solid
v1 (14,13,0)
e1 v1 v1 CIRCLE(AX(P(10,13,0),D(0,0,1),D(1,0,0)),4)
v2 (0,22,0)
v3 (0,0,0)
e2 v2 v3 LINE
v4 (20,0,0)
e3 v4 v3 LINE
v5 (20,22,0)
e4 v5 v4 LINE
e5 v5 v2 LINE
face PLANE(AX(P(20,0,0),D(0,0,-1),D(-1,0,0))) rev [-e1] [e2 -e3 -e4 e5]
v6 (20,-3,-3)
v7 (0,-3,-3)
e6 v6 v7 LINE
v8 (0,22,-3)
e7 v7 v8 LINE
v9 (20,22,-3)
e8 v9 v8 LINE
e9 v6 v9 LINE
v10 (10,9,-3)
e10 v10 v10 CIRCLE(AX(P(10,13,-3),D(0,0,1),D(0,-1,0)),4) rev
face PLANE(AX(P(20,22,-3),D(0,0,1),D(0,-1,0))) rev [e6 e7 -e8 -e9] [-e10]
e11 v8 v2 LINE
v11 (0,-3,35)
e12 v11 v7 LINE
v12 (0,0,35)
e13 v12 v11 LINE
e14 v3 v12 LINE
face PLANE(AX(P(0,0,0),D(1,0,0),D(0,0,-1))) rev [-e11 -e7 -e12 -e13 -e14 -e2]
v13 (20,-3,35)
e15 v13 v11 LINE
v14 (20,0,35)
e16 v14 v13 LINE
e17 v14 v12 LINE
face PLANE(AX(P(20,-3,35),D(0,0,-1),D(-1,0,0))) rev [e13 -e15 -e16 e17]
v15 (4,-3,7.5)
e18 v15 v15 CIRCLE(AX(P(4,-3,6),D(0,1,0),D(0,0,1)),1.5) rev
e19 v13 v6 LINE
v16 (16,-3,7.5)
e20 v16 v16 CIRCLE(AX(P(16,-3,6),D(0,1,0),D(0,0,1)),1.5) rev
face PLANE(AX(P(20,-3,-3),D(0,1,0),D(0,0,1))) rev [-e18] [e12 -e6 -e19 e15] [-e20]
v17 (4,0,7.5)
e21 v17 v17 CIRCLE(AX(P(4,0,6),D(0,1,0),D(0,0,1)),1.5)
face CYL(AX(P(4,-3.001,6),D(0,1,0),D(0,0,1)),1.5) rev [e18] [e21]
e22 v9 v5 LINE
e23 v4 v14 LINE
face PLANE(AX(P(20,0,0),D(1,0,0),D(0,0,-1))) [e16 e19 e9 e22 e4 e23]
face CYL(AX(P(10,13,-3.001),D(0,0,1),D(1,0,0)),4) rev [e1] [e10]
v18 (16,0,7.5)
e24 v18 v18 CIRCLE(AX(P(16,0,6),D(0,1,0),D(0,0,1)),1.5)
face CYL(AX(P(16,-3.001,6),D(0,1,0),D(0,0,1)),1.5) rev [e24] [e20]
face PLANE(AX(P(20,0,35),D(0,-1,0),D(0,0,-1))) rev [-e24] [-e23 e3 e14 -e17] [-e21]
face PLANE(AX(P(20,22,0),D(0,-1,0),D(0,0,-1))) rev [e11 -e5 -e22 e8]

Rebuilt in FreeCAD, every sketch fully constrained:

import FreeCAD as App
import Part
import Sketcher
from FreeCAD import Vector
Q = App.Units.Quantity

doc = App.newDocument("Part")
body = doc.addObject("PartDesign::Body", "Body")

# Sketch on YZ plane
sketch1 = doc.addObject("Sketcher::SketchObject", "Sketch")
body.addObject(sketch1)
sketch1.AttachmentSupport = (doc.YZ_Plane, [""])
sketch1.MapMode = "FlatFace"
sketch1.addGeometry(Part.LineSegment(Vector(22, 0, 0), Vector(0, 0, 0)), False)
sketch1.addGeometry(Part.LineSegment(Vector(0, 0, 0), Vector(0, 35, 0)), False)
sketch1.addGeometry(Part.LineSegment(Vector(0, 35, 0), Vector(-3, 35, 0)), False)
sketch1.addGeometry(Part.LineSegment(Vector(-3, 35, 0), Vector(-3, -3, 0)), False)
sketch1.addGeometry(Part.LineSegment(Vector(-3, -3, 0), Vector(22, -3, 0)), False)
sketch1.addGeometry(Part.LineSegment(Vector(22, -3, 0), Vector(22, 0, 0)), False)
sketch1.addConstraint(Sketcher.Constraint("Coincident", 0, 2, 1, 1))
sketch1.addConstraint(Sketcher.Constraint("Coincident", 1, 2, 2, 1))
sketch1.addConstraint(Sketcher.Constraint("Coincident", 2, 2, 3, 1))
sketch1.addConstraint(Sketcher.Constraint("Coincident", 3, 2, 4, 1))
sketch1.addConstraint(Sketcher.Constraint("Coincident", 4, 2, 5, 1))
sketch1.addConstraint(Sketcher.Constraint("Coincident", 5, 2, 0, 1))
sketch1.addConstraint(Sketcher.Constraint("Horizontal", 0))
sketch1.addConstraint(Sketcher.Constraint("Vertical", 1))
sketch1.addConstraint(Sketcher.Constraint("Horizontal", 2))
sketch1.addConstraint(Sketcher.Constraint("Vertical", 3))
sketch1.addConstraint(Sketcher.Constraint("Horizontal", 4))
sketch1.addConstraint(Sketcher.Constraint("Vertical", 5))
sketch1.addConstraint(Sketcher.Constraint("Coincident", 0, 2, -1, 1))
sketch1.addConstraint(Sketcher.Constraint("Equal", 2, 5))
sketch1.addConstraint(Sketcher.Constraint("DistanceX", 0, 2, 0, 1, Q("22 mm")))
sketch1.addConstraint(Sketcher.Constraint("DistanceX", 2, 2, 2, 1, Q("3 mm")))
sketch1.addConstraint(Sketcher.Constraint("DistanceY", 1, 1, 1, 2, Q("35 mm")))
pad1 = doc.addObject("PartDesign::Pad", "Pad")
body.addObject(pad1)
pad1.Profile = sketch1
pad1.Length = 20

# Sketch on XY plane
sketch2 = doc.addObject("Sketcher::SketchObject", "Sketch001")
body.addObject(sketch2)
sketch2.AttachmentSupport = (doc.XY_Plane, [""])
sketch2.MapMode = "FlatFace"
sketch2.addGeometry(Part.Circle(Vector(10, 13, 0), Vector(0, 0, 1), 4), False)
sketch2.addConstraint(Sketcher.Constraint("Diameter", 0, Q("8 mm")))
sketch2.addConstraint(Sketcher.Constraint("DistanceX", -1, 1, 0, 3, Q("10 mm")))
sketch2.addConstraint(Sketcher.Constraint("DistanceY", -1, 1, 0, 3, Q("13 mm")))
pocket1 = doc.addObject("PartDesign::Pocket", "Pocket")
body.addObject(pocket1)
pocket1.Profile = sketch2
pocket1.Type = "UpToFirst"

# Sketch on XZ plane
sketch3 = doc.addObject("Sketcher::SketchObject", "Sketch002")
body.addObject(sketch3)
sketch3.AttachmentSupport = (doc.XZ_Plane, [""])
sketch3.MapMode = "FlatFace"
sketch3.addGeometry(Part.Circle(Vector(4, 6, 0), Vector(0, 0, 1), 1.5), False)
sketch3.addConstraint(Sketcher.Constraint("Diameter", 0, Q("3 mm")))
sketch3.addConstraint(Sketcher.Constraint("DistanceX", -1, 1, 0, 3, Q("4 mm")))
sketch3.addConstraint(Sketcher.Constraint("DistanceY", -1, 1, 0, 3, Q("6 mm")))
pocket2 = doc.addObject("PartDesign::Pocket", "Pocket001")
body.addObject(pocket2)
pocket2.Profile = sketch3
pocket2.Type = "UpToFirst"
pocket2.Reversed = True

# Sketch on XZ plane
sketch4 = doc.addObject("Sketcher::SketchObject", "Sketch003")
body.addObject(sketch4)
sketch4.AttachmentSupport = (doc.XZ_Plane, [""])
sketch4.MapMode = "FlatFace"
sketch4.addGeometry(Part.Circle(Vector(16, 6, 0), Vector(0, 0, 1), 1.5), False)
sketch4.addConstraint(Sketcher.Constraint("Diameter", 0, Q("3 mm")))
sketch4.addConstraint(Sketcher.Constraint("DistanceX", -1, 1, 0, 3, Q("16 mm")))
sketch4.addConstraint(Sketcher.Constraint("DistanceY", -1, 1, 0, 3, Q("6 mm")))
pocket3 = doc.addObject("PartDesign::Pocket", "Pocket002")
body.addObject(pocket3)
pocket3.Profile = sketch4
pocket3.Type = "UpToFirst"
pocket3.Reversed = True

doc.recompute()
